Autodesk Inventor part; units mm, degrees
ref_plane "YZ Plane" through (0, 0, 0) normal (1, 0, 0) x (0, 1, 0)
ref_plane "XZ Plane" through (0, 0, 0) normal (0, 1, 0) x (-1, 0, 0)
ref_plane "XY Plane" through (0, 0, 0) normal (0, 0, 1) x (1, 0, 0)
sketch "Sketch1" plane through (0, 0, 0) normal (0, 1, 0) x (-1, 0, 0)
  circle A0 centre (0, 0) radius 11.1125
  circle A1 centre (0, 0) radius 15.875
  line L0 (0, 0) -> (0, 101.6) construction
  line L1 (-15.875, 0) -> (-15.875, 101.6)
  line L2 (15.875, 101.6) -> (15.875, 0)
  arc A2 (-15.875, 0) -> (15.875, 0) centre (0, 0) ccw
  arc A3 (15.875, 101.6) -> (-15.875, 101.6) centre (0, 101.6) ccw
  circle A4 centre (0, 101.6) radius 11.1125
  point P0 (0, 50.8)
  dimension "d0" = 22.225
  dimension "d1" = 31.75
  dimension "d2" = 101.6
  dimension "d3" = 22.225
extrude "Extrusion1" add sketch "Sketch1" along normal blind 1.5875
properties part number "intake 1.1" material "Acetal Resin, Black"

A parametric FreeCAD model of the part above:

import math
import FreeCAD as App
import Part
import Sketcher
Q = App.Units.Quantity

doc = App.newDocument("Part")
body = doc.addObject("PartDesign::Body", "Body")

# Sketch on XZ plane
sketch1 = body.newObject("Sketcher::SketchObject", "Sketch")
sketch1.AttachmentSupport = (doc.getObject("XZ_Plane"), [""])
sketch1.MapMode = "FlatFace"
sketch1.addGeometry([
    Part.ArcOfCircle(Part.Circle(App.Vector(0, 0, 0), App.Vector(0, 0, 1), 15.875), math.radians(180), math.radians(360)),  # 0
    Part.LineSegment(App.Vector(-15.875, 0, 0), App.Vector(-15.875, 101.6, 0)),  # 1
    Part.ArcOfCircle(Part.Circle(App.Vector(0, 101.6, 0), App.Vector(0, 0, 1), 15.875), math.radians(0), math.radians(180)),  # 2
    Part.LineSegment(App.Vector(15.875, 101.6, 0), App.Vector(15.875, 0, 0)),  # 3
    Part.Circle(App.Vector(0, 0, 0), App.Vector(0, 0, 1), 11.1125),  # 4
    Part.Circle(App.Vector(0, 101.6, 0), App.Vector(0, 0, 1), 11.1125),  # 5
], False)
sketch1.addConstraint([
    Sketcher.Constraint("Tangent", 0, 1, 1, 1),
    Sketcher.Constraint("Tangent", 1, 2, 2, 2),
    Sketcher.Constraint("Tangent", 2, 1, 3, 1),
    Sketcher.Constraint("Tangent", 3, 2, 0, 2),
    Sketcher.Constraint("Vertical", 1),
    Sketcher.Constraint("Vertical", 3),
    Sketcher.Constraint("Coincident", 0, 3, -1, 1),
    Sketcher.Constraint("Coincident", 4, 3, -1, 1),
    Sketcher.Constraint("Coincident", 5, 3, 2, 3),
    Sketcher.Constraint("Equal", 4, 5),
    Sketcher.Constraint("DistanceY", 1, 1, 1, 2, Q("4 in")),
    Sketcher.Constraint("Diameter", 4, Q("0.875 in")),
    Sketcher.Constraint("Radius", 0, Q("0.625 in")),
])
pad1 = body.newObject("PartDesign::Pad", "Pad")
pad1.Profile = sketch1
pad1.Length = Q("0.0625 in")
pad1.Reversed = True

doc.recompute()
